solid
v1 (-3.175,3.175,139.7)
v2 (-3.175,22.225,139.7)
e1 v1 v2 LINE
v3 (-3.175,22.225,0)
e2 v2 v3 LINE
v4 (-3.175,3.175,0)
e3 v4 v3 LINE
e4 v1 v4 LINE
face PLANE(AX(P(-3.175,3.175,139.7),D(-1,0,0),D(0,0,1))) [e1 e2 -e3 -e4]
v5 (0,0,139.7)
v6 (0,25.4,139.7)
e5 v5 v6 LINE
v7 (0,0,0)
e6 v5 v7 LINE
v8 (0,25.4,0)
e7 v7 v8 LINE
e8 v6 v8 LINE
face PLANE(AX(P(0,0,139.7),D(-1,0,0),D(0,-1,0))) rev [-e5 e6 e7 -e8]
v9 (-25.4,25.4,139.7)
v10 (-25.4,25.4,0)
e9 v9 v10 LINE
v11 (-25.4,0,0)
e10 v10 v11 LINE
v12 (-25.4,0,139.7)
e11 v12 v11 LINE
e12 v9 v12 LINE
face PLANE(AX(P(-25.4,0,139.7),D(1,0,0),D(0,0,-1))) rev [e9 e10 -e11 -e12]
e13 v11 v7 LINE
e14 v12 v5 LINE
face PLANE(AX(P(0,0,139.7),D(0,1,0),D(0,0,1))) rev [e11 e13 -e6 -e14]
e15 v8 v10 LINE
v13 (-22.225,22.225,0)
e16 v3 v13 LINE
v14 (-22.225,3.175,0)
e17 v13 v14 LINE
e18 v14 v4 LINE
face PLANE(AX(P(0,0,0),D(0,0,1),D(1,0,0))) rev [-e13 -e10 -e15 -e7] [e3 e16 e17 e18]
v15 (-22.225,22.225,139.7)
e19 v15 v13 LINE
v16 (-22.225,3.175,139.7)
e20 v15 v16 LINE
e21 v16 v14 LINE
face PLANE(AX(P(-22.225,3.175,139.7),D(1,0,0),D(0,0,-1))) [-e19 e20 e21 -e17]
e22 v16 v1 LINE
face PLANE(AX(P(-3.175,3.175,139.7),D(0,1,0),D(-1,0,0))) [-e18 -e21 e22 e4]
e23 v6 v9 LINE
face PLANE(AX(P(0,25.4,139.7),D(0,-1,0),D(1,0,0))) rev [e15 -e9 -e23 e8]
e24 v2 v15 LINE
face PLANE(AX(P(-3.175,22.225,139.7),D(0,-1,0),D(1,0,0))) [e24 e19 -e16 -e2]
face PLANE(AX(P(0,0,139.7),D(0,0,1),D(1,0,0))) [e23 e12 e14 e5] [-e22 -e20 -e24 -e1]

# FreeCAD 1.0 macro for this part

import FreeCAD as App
import Part
import Sketcher
from FreeCAD import Vector
Q = App.Units.Quantity


def add_polygon(sketch, points):
    """Adds a closed chain of lines whose ends are joined by coincident constraints."""
    first, n = sketch.GeometryCount, len(points)
    for a, b in zip(points, points[1:] + points[:1]):
        sketch.addGeometry(Part.LineSegment(App.Vector(*a, 0), App.Vector(*b, 0)), False)
    for i in range(n):
        sketch.addConstraint(Sketcher.Constraint("Coincident", first + i, 2, first + (i + 1) % n, 1))

doc = App.newDocument("Part")
params = doc.addObject("Spreadsheet::Sheet", "Params")
for row, (alias, value) in enumerate([
    ("sketch1_width", "1 in"),
    ("sketch1_width2", "0.75 in"),
    ("pad1_length", "5.5 in"),
], start=1):
    params.set(f"A{row}", alias)
    params.set(f"B{row}", "=" + value)
    params.setAlias(f"B{row}", alias)

body = doc.addObject("PartDesign::Body", "Body")

# Sketch on XY plane
sketch1 = body.newObject("Sketcher::SketchObject", "Sketch")
sketch1.AttachmentSupport = (doc.getObject("XY_Plane"), [""])
sketch1.MapMode = "FlatFace"
add_polygon(sketch1, [(-25, 25), (-25, 0), (0, 0), (0, 25)])  # lines 0-3
add_polygon(sketch1, [(-3, 3), (-22, 3), (-22, 22), (-3, 22)])  # lines 4-7
sketch1.addConstraint(Sketcher.Constraint("Vertical", 0))
sketch1.addConstraint(Sketcher.Constraint("Horizontal", 1))
sketch1.addConstraint(Sketcher.Constraint("Vertical", 2))
sketch1.addConstraint(Sketcher.Constraint("Horizontal", 3))
sketch1.addConstraint(Sketcher.Constraint("Horizontal", 4))
sketch1.addConstraint(Sketcher.Constraint("Vertical", 5))
sketch1.addConstraint(Sketcher.Constraint("Horizontal", 6))
sketch1.addConstraint(Sketcher.Constraint("Vertical", 7))
sketch1.addConstraint(Sketcher.Constraint("Coincident", 1, 2, -1, 1))
sketch1.addConstraint(Sketcher.Constraint("Equal", 3, 0))
sketch1.addConstraint(Sketcher.Constraint("Equal", 6, 5))
sketch1.addConstraint(Sketcher.Constraint("DistanceX", 1, 1, 1, 2, Q("1 in")))
sketch1.addConstraint(Sketcher.Constraint("DistanceX", 4, 2, 4, 1, Q("0.75 in")))
sketch1.addConstraint(Sketcher.Constraint("DistanceX", 4, 2, -1, 1, Q("0.875 in")))
sketch1.addConstraint(Sketcher.Constraint("DistanceY", -1, 1, 4, 2, Q("0.125 in")))
sketch1.setExpression("Constraints[19]", "Params.sketch1_width")
sketch1.setExpression("Constraints[20]", "Params.sketch1_width2")
pad1 = body.newObject("PartDesign::Pad", "Pad")
pad1.Profile = sketch1
pad1.setExpression("Length", "Params.pad1_length")

doc.recompute()
